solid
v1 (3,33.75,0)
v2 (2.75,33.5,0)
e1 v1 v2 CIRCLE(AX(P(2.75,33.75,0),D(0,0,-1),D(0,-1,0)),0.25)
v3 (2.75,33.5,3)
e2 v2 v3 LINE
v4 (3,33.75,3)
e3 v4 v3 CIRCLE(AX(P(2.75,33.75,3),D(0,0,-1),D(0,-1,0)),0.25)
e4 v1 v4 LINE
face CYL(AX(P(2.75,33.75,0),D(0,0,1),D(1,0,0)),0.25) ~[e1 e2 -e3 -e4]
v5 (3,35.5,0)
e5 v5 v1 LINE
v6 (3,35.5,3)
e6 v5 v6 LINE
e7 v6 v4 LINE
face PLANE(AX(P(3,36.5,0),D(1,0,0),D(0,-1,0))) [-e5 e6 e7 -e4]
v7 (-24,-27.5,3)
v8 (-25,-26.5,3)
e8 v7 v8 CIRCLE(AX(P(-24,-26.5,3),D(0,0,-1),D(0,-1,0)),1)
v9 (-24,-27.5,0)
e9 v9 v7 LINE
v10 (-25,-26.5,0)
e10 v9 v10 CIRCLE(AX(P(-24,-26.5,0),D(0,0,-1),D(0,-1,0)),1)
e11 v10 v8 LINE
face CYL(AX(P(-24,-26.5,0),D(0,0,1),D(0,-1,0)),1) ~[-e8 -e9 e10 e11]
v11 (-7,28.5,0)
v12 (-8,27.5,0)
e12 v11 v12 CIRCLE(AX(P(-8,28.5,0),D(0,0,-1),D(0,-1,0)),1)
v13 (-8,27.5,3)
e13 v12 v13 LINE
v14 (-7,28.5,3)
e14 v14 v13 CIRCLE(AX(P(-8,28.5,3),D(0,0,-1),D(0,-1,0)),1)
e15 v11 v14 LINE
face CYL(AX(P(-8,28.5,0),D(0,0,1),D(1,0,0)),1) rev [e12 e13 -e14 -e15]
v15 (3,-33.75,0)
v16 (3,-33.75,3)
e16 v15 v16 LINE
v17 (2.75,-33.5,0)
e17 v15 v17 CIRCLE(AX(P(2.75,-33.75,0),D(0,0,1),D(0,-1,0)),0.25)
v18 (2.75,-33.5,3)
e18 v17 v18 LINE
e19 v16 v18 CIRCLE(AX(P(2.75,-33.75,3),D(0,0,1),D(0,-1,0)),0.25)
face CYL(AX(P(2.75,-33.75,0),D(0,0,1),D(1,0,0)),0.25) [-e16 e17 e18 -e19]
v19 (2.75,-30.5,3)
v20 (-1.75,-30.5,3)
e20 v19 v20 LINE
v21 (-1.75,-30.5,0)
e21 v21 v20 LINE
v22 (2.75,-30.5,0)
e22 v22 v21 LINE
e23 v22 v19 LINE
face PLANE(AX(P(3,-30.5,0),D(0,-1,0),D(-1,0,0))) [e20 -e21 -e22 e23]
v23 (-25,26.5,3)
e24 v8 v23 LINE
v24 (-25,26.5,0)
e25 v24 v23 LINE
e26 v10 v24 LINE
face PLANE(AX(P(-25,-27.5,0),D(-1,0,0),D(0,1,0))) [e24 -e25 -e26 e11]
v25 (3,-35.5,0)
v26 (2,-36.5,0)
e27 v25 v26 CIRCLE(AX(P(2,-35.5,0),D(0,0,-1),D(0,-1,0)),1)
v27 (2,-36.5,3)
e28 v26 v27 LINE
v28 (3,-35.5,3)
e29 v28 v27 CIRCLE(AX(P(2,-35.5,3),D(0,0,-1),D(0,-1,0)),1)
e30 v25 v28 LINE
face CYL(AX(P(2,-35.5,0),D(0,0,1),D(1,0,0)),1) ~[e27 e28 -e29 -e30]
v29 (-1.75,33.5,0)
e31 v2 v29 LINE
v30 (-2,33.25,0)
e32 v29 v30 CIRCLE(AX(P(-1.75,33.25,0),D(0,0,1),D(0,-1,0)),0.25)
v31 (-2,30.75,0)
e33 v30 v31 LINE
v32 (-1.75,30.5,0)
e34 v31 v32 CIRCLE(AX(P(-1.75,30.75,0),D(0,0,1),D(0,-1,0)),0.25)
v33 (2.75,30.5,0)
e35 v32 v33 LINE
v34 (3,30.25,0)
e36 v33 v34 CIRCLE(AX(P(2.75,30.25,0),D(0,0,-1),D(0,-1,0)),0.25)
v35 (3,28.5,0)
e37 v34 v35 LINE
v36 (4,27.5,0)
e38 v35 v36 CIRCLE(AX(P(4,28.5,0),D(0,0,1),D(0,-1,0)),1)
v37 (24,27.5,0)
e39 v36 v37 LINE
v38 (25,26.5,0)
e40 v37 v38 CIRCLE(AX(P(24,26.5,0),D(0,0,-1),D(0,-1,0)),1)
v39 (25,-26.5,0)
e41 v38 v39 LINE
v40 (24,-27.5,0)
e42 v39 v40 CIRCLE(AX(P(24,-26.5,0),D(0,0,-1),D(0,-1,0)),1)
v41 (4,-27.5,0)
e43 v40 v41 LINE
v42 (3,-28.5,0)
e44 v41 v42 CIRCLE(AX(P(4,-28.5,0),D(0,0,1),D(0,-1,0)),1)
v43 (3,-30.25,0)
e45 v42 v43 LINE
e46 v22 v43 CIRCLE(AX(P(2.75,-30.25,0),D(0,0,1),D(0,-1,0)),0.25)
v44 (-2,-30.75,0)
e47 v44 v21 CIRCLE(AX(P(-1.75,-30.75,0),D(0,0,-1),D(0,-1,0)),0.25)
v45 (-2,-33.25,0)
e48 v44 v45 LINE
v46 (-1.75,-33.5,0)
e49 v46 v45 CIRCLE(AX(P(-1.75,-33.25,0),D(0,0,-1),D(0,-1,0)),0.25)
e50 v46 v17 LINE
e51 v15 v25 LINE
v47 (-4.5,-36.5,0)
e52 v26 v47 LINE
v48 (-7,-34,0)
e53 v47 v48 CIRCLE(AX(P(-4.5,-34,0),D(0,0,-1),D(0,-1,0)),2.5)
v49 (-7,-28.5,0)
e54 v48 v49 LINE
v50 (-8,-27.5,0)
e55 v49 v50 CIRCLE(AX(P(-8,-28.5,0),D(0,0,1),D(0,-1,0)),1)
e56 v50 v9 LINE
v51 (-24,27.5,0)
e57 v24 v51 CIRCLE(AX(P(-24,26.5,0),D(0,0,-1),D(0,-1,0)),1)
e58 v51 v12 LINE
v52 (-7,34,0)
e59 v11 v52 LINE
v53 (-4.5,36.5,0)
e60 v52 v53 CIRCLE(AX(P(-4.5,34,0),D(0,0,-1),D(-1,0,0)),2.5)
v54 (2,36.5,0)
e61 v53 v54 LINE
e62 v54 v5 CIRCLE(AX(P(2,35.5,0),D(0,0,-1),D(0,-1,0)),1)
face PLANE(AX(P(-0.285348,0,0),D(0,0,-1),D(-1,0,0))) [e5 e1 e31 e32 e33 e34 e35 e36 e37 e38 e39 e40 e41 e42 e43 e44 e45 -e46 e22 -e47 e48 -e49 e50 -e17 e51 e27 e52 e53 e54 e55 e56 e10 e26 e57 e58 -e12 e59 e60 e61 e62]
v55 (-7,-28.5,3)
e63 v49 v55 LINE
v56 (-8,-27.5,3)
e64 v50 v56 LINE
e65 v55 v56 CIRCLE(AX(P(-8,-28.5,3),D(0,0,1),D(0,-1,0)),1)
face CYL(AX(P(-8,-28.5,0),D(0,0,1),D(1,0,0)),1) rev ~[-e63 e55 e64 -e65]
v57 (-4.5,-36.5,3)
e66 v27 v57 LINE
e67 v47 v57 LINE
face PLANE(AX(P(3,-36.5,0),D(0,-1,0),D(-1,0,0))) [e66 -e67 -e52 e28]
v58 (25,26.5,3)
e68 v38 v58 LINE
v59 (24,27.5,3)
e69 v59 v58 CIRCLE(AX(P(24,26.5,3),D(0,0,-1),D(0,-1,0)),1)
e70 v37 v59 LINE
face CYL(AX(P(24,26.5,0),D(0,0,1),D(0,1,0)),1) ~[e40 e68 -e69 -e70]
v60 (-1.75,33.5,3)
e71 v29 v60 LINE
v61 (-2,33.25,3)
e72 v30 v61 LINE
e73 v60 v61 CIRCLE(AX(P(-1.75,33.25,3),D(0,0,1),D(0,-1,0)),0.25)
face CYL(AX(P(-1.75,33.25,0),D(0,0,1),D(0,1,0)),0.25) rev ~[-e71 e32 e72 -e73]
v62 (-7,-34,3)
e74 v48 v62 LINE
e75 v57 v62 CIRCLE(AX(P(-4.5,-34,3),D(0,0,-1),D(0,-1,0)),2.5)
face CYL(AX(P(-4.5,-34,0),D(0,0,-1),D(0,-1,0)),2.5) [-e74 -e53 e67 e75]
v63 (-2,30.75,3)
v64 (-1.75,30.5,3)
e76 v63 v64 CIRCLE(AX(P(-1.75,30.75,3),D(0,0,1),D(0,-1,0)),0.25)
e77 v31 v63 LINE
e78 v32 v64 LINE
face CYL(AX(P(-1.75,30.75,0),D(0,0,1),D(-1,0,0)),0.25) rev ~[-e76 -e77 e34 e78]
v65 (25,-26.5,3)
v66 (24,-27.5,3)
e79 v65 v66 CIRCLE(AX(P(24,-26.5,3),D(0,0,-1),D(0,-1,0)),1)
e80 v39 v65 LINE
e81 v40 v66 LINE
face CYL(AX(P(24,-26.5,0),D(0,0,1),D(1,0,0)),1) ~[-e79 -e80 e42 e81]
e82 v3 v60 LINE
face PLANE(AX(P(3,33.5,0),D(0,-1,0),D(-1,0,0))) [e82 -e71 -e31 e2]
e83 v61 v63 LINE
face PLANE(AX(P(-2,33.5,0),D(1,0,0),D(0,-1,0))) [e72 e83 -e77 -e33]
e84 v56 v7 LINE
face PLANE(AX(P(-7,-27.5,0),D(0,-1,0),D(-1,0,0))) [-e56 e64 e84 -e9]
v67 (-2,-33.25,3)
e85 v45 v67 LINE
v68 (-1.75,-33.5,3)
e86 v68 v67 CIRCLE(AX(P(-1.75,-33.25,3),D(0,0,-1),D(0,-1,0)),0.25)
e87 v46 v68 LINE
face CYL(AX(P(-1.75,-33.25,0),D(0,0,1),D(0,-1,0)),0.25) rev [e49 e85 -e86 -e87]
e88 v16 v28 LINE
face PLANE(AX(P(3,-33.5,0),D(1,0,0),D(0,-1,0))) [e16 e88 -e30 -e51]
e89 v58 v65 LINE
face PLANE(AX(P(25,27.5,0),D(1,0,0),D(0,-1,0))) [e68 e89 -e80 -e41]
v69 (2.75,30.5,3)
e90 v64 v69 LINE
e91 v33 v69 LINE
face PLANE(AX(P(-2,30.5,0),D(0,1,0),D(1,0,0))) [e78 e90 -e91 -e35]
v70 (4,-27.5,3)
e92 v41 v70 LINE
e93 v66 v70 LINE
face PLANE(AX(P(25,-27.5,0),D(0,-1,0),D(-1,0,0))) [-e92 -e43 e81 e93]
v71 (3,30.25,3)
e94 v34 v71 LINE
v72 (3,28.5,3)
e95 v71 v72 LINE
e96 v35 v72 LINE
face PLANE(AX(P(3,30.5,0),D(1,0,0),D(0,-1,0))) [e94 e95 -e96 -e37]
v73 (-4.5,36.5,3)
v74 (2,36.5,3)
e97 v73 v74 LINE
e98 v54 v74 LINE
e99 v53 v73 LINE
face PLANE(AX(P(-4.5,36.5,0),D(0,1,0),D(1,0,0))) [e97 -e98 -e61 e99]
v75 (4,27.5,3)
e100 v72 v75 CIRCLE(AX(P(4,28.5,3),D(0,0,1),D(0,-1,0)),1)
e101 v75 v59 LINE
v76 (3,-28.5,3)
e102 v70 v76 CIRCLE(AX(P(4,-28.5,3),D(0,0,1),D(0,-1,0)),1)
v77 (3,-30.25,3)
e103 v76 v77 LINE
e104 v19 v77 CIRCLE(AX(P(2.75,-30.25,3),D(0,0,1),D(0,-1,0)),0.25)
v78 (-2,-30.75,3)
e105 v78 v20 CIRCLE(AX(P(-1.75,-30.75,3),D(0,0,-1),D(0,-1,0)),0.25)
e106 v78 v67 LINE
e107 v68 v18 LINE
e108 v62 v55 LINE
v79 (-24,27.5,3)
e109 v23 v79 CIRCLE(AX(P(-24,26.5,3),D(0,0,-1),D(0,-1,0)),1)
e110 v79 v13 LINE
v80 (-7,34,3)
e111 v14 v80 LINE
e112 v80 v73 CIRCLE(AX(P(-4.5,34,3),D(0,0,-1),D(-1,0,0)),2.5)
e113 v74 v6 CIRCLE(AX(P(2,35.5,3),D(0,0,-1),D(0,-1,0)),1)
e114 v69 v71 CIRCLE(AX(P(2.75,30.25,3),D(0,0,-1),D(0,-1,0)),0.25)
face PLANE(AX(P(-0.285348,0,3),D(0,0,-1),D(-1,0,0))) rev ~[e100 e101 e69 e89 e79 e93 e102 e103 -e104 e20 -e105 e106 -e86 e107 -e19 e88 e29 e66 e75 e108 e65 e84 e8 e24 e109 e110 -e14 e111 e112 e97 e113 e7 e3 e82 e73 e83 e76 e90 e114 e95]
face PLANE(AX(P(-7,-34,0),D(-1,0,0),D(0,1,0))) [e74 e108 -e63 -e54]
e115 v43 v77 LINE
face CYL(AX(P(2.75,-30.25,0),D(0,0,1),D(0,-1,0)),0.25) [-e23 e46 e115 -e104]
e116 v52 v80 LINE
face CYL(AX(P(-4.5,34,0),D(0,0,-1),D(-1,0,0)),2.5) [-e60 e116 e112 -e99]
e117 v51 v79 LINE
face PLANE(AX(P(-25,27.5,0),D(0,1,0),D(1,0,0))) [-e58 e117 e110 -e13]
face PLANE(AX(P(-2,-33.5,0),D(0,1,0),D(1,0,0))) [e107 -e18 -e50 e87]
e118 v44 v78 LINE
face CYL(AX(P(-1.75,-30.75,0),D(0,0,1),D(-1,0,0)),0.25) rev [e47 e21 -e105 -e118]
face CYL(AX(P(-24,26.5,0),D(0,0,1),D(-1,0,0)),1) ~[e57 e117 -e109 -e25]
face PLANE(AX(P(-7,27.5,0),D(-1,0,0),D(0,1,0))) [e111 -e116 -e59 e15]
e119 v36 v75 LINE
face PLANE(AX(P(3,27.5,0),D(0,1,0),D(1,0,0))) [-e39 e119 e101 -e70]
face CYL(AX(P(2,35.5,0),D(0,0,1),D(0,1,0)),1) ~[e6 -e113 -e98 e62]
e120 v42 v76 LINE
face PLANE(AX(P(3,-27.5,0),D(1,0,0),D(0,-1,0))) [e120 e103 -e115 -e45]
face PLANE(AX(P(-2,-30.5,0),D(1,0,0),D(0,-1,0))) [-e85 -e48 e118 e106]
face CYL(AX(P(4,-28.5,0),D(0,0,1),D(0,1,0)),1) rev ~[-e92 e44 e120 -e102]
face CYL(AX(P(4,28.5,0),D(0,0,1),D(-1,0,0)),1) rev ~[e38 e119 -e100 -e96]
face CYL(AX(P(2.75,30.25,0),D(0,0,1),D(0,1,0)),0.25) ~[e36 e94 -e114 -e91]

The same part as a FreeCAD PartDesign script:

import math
import FreeCAD as App
import Part
import Sketcher

V = App.Vector
Q = App.Units.Quantity


def edges_at(feature, points):
    """Names of the edges that pass closest to the given points."""
    edges = feature.Shape.Edges
    near = lambda p: min(range(len(edges)), key=lambda i: edges[i].distToShape(Part.Vertex(*p))[0])
    return sorted({f"Edge{near(p) + 1}" for p in points})

doc = App.newDocument("Part")
body = doc.addObject("PartDesign::Body", "Body")

# Sketch on XY plane
sketch1 = body.newObject("Sketcher::SketchObject", "Sketch")
sketch1.AttachmentSupport = (doc.getObject("XY_Plane"), [""])
sketch1.MapMode = "FlatFace"
sketch1.addGeometry([
    Part.LineSegment(V(-7, 34, 0), V(-7, 27.5, 0)),  # 0
    Part.LineSegment(V(-7, 27.5, 0), V(-25, 27.5, 0)),  # 1
    Part.LineSegment(V(-25, 27.5, 0), V(-25, -27.5, 0)),  # 2
    Part.LineSegment(V(-25, -27.5, 0), V(-7, -27.5, 0)),  # 3
    Part.LineSegment(V(-7, -27.5, 0), V(-7, -34, 0)),  # 4
    Part.ArcOfCircle(Part.Circle(V(-4.5, -34, 0), V(0, 0, 1), 2.5), math.radians(180), math.radians(270)),  # 5
    Part.LineSegment(V(-4.5, -36.5, 0), V(3, -36.5, 0)),  # 6
    Part.LineSegment(V(3, -36.5, 0), V(3, -33.5, 0)),  # 7
    Part.LineSegment(V(3, -33.5, 0), V(-2, -33.5, 0)),  # 8
    Part.LineSegment(V(-2, -33.5, 0), V(-2, -30.5, 0)),  # 9
    Part.LineSegment(V(-2, -30.5, 0), V(3, -30.5, 0)),  # 10
    Part.LineSegment(V(3, -30.5, 0), V(3, -27.5, 0)),  # 11
    Part.LineSegment(V(3, -27.5, 0), V(25, -27.5, 0)),  # 12
    Part.LineSegment(V(25, -27.5, 0), V(25, 27.5, 0)),  # 13
    Part.LineSegment(V(25, 27.5, 0), V(3, 27.5, 0)),  # 14
    Part.LineSegment(V(3, 27.5, 0), V(3, 30.5, 0)),  # 15
    Part.LineSegment(V(3, 30.5, 0), V(-2, 30.5, 0)),  # 16
    Part.LineSegment(V(-2, 30.5, 0), V(-2, 33.5, 0)),  # 17
    Part.LineSegment(V(-2, 33.5, 0), V(3, 33.5, 0)),  # 18
    Part.LineSegment(V(3, 33.5, 0), V(3, 36.5, 0)),  # 19
    Part.LineSegment(V(3, 36.5, 0), V(-4.5, 36.5, 0)),  # 20
    Part.ArcOfCircle(Part.Circle(V(-4.5, 34, 0), V(0, 0, 1), 2.5), math.radians(90), math.radians(180)),  # 21
], False)
sketch1.addConstraint([
    Sketcher.Constraint("Coincident", 0, 2, 1, 1),
    Sketcher.Constraint("Coincident", 1, 2, 2, 1),
    Sketcher.Constraint("Coincident", 2, 2, 3, 1),
    Sketcher.Constraint("Coincident", 3, 2, 4, 1),
    Sketcher.Constraint("Tangent", 4, 2, 5, 1),
    Sketcher.Constraint("Tangent", 5, 2, 6, 1),
    Sketcher.Constraint("Coincident", 6, 2, 7, 1),
    Sketcher.Constraint("Coincident", 7, 2, 8, 1),
    Sketcher.Constraint("Coincident", 8, 2, 9, 1),
    Sketcher.Constraint("Coincident", 9, 2, 10, 1),
    Sketcher.Constraint("Coincident", 10, 2, 11, 1),
    Sketcher.Constraint("Coincident", 11, 2, 12, 1),
    Sketcher.Constraint("Coincident", 12, 2, 13, 1),
    Sketcher.Constraint("Coincident", 13, 2, 14, 1),
    Sketcher.Constraint("Coincident", 14, 2, 15, 1),
    Sketcher.Constraint("Coincident", 15, 2, 16, 1),
    Sketcher.Constraint("Coincident", 16, 2, 17, 1),
    Sketcher.Constraint("Coincident", 17, 2, 18, 1),
    Sketcher.Constraint("Coincident", 18, 2, 19, 1),
    Sketcher.Constraint("Coincident", 19, 2, 20, 1),
    Sketcher.Constraint("Tangent", 20, 2, 21, 1),
    Sketcher.Constraint("Tangent", 21, 2, 0, 1),
    Sketcher.Constraint("Vertical", 0),
    Sketcher.Constraint("Horizontal", 1),
    Sketcher.Constraint("Vertical", 2),
    Sketcher.Constraint("Horizontal", 3),
    Sketcher.Constraint("Vertical", 4),
    Sketcher.Constraint("Horizontal", 6),
    Sketcher.Constraint("Vertical", 7),
    Sketcher.Constraint("Horizontal", 8),
    Sketcher.Constraint("Vertical", 9),
    Sketcher.Constraint("Horizontal", 10),
    Sketcher.Constraint("Vertical", 11),
    Sketcher.Constraint("Horizontal", 12),
    Sketcher.Constraint("Vertical", 13),
    Sketcher.Constraint("Horizontal", 14),
    Sketcher.Constraint("Vertical", 15),
    Sketcher.Constraint("Horizontal", 16),
    Sketcher.Constraint("Vertical", 17),
    Sketcher.Constraint("Horizontal", 18),
    Sketcher.Constraint("Vertical", 19),
    Sketcher.Constraint("Horizontal", 20),
    Sketcher.Constraint("Equal", 5, 21),
    Sketcher.Constraint("Symmetric", 1, 2, 12, 2, -1, 1),
    Sketcher.Constraint("Symmetric", 5, 3, 21, 3, -1),
    Sketcher.Constraint("Symmetric", 11, 2, 14, 2, -1),
    Sketcher.Constraint("Symmetric", 9, 2, 16, 2, -1),
    Sketcher.Constraint("Symmetric", 7, 2, 18, 2, -1),
    Sketcher.Constraint("Horizontal", 3, 2, 11, 2),
    Sketcher.Constraint("Vertical", 7, 2, 10, 2),
    Sketcher.Constraint("Equal", 7, 9),
    Sketcher.Constraint("Equal", 9, 11),
    Sketcher.Constraint("Radius", 5, Q("2.5 mm")),
    Sketcher.Constraint("DistanceX", 1, 2, 1, 1, Q("18 mm")),
    Sketcher.Constraint("DistanceX", 8, 2, 8, 1, Q("5 mm")),
    Sketcher.Constraint("DistanceX", 12, 1, 12, 2, Q("22 mm")),
    Sketcher.Constraint("DistanceY", 2, 2, 2, 1, Q("55 mm")),
    Sketcher.Constraint("DistanceY", 7, 1, 7, 2, Q("3 mm")),
    Sketcher.Constraint("DistanceX", 6, 1, 6, 2, Q("7.5 mm")),
])
pad1 = body.newObject("PartDesign::Pad", "Pad")
pad1.Profile = sketch1
pad1.Length = 3
doc.recompute()

fillet = body.newObject("PartDesign::Fillet", "Fillet")
fillet.Base = (pad1, edges_at(pad1, [
    (-25, 27.5, 1.5),
    (-25, -27.5, 1.5),
    (-7, -27.5, 1.5),
    (3, -36.5, 1.5),
    (3, -27.5, 1.5),
    (25, -27.5, 1.5),
    (25, 27.5, 1.5),
    (3, 27.5, 1.5),
    (3, 36.5, 1.5),
    (-7, 27.5, 1.5),
]))
fillet.Radius = 1
doc.recompute()

fillet2 = body.newObject("PartDesign::Fillet", "Fillet001")
fillet2.Base = (fillet, edges_at(fillet, [
    (3, -33.5, 1.5),
    (-2, -33.5, 1.5),
    (-2, -30.5, 1.5),
    (3, -30.5, 1.5),
    (3, 30.5, 1.5),
    (-2, 30.5, 1.5),
    (-2, 33.5, 1.5),
    (3, 33.5, 1.5),
]))
fillet2.Radius = 0.25

doc.recompute()
